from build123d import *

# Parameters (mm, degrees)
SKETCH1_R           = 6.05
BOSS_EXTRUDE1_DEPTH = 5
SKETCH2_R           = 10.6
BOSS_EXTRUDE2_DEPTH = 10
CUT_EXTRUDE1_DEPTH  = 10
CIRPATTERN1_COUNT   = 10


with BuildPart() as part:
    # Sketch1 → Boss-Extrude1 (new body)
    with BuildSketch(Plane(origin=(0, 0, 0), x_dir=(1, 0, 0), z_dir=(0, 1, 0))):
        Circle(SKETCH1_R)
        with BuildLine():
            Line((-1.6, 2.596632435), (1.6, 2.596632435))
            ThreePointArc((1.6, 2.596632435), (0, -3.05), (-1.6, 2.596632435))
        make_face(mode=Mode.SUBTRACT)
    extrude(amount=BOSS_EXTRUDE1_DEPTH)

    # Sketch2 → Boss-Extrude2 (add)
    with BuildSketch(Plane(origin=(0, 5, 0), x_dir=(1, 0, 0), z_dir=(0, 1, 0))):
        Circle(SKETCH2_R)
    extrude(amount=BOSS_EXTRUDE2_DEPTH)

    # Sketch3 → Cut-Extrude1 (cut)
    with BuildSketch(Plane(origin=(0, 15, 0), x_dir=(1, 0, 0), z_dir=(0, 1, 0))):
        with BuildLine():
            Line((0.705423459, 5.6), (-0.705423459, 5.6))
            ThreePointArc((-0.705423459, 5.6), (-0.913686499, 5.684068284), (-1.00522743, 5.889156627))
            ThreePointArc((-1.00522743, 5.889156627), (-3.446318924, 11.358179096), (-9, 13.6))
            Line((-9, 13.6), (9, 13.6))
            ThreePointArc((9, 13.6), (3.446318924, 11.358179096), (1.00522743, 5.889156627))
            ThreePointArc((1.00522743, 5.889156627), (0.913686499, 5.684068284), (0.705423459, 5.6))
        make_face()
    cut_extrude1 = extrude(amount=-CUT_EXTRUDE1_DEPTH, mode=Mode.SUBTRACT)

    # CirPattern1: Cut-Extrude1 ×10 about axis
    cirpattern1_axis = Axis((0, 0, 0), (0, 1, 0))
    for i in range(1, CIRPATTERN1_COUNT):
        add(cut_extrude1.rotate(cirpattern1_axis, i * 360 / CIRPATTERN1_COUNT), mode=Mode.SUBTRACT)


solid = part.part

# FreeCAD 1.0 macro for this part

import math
import FreeCAD as App
import Part
import Sketcher

doc = App.newDocument("Part")
body = doc.addObject("PartDesign::Body", "Body")

# Sketch on XZ plane
sketch1 = body.newObject("Sketcher::SketchObject", "Sketch")
sketch1.AttachmentSupport = (doc.getObject("XZ_Plane"), [""])
sketch1.MapMode = "FlatFace"
sketch1.addGeometry([
    Part.Circle(App.Vector(0, 0, 0), App.Vector(0, 0, 1), 6),
    Part.ArcOfCircle(Part.Circle(App.Vector(0, 0, 0), App.Vector(0, 0, 1), 3), math.radians(-58), math.radians(238)),
    Part.LineSegment(App.Vector(-1.6, -2.6, 0), App.Vector(1.6, -2.6, 0)),
], False)
sketch1.addConstraint([
    Sketcher.Constraint("Coincident", 1, 1, 2, 2),
    Sketcher.Constraint("Coincident", 2, 1, 1, 2),
    Sketcher.Constraint("Horizontal", 2),
    Sketcher.Constraint("Coincident", 0, 3, -1, 1),
    Sketcher.Constraint("Coincident", 1, 3, -1, 1),
    Sketcher.Constraint("Diameter", 0, 12.1),
    Sketcher.Constraint("Radius", 1, 3.05),
    Sketcher.Constraint("DistanceX", 2, 1, 2, 2, 3.2),
])
pad1 = body.newObject("PartDesign::Pad", "Pad")
pad1.Profile = sketch1
pad1.Length = 5
pad1.Reversed = True

# Sketch on XZ plane
sketch2 = body.newObject("Sketcher::SketchObject", "Sketch001")
sketch2.AttachmentSupport = (doc.getObject("XZ_Plane"), [""])
sketch2.MapMode = "FlatFace"
sketch2.AttachmentOffset = App.Placement(App.Vector(0, 0, -5), App.Rotation())
sketch2.addGeometry(Part.Circle(App.Vector(0, 0, 0), App.Vector(0, 0, 1), 11), False)
sketch2.addConstraint([
    Sketcher.Constraint("Coincident", 0, 3, -1, 1),
    Sketcher.Constraint("Diameter", 0, 21.2),
])
pad2 = body.newObject("PartDesign::Pad", "Pad001")
pad2.Profile = sketch2
pad2.Length = 10
pad2.Reversed = True

# Sketch on XZ plane
sketch3 = body.newObject("Sketcher::SketchObject", "Sketch002")
sketch3.AttachmentSupport = (doc.getObject("XZ_Plane"), [""])
sketch3.MapMode = "FlatFace"
sketch3.AttachmentOffset = App.Placement(App.Vector(0, 0, -15), App.Rotation())
sketch3.addGeometry([
    Part.LineSegment(App.Vector(-0.71, -5.6, 0), App.Vector(0.71, -5.6, 0)),  # 0
    Part.ArcOfCircle(Part.Circle(App.Vector(0.71, -5.9, 0), App.Vector(0, 0, 1), 0.3), math.radians(2), math.radians(90)),  # 1
    Part.ArcOfCircle(Part.Circle(App.Vector(9, -5.6, 0), App.Vector(0, 0, 1), 8), math.radians(-178), math.radians(-90)),  # 2
    Part.LineSegment(App.Vector(9, -13.6, 0), App.Vector(-9, -13.6, 0)),  # 3
    Part.ArcOfCircle(Part.Circle(App.Vector(-9, -5.6, 0), App.Vector(0, 0, 1), 8), math.radians(-90), math.radians(-2)),  # 4
    Part.ArcOfCircle(Part.Circle(App.Vector(-0.71, -5.9, 0), App.Vector(0, 0, 1), 0.3), math.radians(90), math.radians(178)),  # 5
], False)
sketch3.addConstraint([
    Sketcher.Constraint("Tangent", 0, 2, 1, 2),
    Sketcher.Constraint("Tangent", 1, 1, 2, 1),
    Sketcher.Constraint("Tangent", 2, 2, 3, 1),
    Sketcher.Constraint("Tangent", 3, 2, 4, 1),
    Sketcher.Constraint("Tangent", 4, 2, 5, 2),
    Sketcher.Constraint("Tangent", 5, 1, 0, 1),
    Sketcher.Constraint("Horizontal", 0),
    Sketcher.Constraint("Horizontal", 3),
    Sketcher.Constraint("Equal", 2, 4),
    Sketcher.Constraint("Equal", 1, 5),
    Sketcher.Constraint("Horizontal", 4, 3, 0, 2),
    Sketcher.Constraint("Radius", 2, 8.0),
    Sketcher.Constraint("Radius", 1, 0.3),
    Sketcher.Constraint("DistanceX", 3, 2, 3, 1, 18.0),
    Sketcher.Constraint("DistanceX", -1, 1, 2, 3, 9.0),
    Sketcher.Constraint("DistanceY", 1, 3, -1, 1, 5.9),
])
pocket1 = body.newObject("PartDesign::Pocket", "Pocket")
pocket1.Profile = sketch3
pocket1.Length = 10
pocket1.Reversed = True
doc.recompute()

polarpattern = body.newObject("PartDesign::PolarPattern", "PolarPattern")
polarpattern.Originals = [pocket1]
polarpattern.Axis = (doc.getObject("Y_Axis"), [""])
polarpattern.Angle = 360
polarpattern.Occurrences = 10
body.Tip = polarpattern

doc.recompute()
